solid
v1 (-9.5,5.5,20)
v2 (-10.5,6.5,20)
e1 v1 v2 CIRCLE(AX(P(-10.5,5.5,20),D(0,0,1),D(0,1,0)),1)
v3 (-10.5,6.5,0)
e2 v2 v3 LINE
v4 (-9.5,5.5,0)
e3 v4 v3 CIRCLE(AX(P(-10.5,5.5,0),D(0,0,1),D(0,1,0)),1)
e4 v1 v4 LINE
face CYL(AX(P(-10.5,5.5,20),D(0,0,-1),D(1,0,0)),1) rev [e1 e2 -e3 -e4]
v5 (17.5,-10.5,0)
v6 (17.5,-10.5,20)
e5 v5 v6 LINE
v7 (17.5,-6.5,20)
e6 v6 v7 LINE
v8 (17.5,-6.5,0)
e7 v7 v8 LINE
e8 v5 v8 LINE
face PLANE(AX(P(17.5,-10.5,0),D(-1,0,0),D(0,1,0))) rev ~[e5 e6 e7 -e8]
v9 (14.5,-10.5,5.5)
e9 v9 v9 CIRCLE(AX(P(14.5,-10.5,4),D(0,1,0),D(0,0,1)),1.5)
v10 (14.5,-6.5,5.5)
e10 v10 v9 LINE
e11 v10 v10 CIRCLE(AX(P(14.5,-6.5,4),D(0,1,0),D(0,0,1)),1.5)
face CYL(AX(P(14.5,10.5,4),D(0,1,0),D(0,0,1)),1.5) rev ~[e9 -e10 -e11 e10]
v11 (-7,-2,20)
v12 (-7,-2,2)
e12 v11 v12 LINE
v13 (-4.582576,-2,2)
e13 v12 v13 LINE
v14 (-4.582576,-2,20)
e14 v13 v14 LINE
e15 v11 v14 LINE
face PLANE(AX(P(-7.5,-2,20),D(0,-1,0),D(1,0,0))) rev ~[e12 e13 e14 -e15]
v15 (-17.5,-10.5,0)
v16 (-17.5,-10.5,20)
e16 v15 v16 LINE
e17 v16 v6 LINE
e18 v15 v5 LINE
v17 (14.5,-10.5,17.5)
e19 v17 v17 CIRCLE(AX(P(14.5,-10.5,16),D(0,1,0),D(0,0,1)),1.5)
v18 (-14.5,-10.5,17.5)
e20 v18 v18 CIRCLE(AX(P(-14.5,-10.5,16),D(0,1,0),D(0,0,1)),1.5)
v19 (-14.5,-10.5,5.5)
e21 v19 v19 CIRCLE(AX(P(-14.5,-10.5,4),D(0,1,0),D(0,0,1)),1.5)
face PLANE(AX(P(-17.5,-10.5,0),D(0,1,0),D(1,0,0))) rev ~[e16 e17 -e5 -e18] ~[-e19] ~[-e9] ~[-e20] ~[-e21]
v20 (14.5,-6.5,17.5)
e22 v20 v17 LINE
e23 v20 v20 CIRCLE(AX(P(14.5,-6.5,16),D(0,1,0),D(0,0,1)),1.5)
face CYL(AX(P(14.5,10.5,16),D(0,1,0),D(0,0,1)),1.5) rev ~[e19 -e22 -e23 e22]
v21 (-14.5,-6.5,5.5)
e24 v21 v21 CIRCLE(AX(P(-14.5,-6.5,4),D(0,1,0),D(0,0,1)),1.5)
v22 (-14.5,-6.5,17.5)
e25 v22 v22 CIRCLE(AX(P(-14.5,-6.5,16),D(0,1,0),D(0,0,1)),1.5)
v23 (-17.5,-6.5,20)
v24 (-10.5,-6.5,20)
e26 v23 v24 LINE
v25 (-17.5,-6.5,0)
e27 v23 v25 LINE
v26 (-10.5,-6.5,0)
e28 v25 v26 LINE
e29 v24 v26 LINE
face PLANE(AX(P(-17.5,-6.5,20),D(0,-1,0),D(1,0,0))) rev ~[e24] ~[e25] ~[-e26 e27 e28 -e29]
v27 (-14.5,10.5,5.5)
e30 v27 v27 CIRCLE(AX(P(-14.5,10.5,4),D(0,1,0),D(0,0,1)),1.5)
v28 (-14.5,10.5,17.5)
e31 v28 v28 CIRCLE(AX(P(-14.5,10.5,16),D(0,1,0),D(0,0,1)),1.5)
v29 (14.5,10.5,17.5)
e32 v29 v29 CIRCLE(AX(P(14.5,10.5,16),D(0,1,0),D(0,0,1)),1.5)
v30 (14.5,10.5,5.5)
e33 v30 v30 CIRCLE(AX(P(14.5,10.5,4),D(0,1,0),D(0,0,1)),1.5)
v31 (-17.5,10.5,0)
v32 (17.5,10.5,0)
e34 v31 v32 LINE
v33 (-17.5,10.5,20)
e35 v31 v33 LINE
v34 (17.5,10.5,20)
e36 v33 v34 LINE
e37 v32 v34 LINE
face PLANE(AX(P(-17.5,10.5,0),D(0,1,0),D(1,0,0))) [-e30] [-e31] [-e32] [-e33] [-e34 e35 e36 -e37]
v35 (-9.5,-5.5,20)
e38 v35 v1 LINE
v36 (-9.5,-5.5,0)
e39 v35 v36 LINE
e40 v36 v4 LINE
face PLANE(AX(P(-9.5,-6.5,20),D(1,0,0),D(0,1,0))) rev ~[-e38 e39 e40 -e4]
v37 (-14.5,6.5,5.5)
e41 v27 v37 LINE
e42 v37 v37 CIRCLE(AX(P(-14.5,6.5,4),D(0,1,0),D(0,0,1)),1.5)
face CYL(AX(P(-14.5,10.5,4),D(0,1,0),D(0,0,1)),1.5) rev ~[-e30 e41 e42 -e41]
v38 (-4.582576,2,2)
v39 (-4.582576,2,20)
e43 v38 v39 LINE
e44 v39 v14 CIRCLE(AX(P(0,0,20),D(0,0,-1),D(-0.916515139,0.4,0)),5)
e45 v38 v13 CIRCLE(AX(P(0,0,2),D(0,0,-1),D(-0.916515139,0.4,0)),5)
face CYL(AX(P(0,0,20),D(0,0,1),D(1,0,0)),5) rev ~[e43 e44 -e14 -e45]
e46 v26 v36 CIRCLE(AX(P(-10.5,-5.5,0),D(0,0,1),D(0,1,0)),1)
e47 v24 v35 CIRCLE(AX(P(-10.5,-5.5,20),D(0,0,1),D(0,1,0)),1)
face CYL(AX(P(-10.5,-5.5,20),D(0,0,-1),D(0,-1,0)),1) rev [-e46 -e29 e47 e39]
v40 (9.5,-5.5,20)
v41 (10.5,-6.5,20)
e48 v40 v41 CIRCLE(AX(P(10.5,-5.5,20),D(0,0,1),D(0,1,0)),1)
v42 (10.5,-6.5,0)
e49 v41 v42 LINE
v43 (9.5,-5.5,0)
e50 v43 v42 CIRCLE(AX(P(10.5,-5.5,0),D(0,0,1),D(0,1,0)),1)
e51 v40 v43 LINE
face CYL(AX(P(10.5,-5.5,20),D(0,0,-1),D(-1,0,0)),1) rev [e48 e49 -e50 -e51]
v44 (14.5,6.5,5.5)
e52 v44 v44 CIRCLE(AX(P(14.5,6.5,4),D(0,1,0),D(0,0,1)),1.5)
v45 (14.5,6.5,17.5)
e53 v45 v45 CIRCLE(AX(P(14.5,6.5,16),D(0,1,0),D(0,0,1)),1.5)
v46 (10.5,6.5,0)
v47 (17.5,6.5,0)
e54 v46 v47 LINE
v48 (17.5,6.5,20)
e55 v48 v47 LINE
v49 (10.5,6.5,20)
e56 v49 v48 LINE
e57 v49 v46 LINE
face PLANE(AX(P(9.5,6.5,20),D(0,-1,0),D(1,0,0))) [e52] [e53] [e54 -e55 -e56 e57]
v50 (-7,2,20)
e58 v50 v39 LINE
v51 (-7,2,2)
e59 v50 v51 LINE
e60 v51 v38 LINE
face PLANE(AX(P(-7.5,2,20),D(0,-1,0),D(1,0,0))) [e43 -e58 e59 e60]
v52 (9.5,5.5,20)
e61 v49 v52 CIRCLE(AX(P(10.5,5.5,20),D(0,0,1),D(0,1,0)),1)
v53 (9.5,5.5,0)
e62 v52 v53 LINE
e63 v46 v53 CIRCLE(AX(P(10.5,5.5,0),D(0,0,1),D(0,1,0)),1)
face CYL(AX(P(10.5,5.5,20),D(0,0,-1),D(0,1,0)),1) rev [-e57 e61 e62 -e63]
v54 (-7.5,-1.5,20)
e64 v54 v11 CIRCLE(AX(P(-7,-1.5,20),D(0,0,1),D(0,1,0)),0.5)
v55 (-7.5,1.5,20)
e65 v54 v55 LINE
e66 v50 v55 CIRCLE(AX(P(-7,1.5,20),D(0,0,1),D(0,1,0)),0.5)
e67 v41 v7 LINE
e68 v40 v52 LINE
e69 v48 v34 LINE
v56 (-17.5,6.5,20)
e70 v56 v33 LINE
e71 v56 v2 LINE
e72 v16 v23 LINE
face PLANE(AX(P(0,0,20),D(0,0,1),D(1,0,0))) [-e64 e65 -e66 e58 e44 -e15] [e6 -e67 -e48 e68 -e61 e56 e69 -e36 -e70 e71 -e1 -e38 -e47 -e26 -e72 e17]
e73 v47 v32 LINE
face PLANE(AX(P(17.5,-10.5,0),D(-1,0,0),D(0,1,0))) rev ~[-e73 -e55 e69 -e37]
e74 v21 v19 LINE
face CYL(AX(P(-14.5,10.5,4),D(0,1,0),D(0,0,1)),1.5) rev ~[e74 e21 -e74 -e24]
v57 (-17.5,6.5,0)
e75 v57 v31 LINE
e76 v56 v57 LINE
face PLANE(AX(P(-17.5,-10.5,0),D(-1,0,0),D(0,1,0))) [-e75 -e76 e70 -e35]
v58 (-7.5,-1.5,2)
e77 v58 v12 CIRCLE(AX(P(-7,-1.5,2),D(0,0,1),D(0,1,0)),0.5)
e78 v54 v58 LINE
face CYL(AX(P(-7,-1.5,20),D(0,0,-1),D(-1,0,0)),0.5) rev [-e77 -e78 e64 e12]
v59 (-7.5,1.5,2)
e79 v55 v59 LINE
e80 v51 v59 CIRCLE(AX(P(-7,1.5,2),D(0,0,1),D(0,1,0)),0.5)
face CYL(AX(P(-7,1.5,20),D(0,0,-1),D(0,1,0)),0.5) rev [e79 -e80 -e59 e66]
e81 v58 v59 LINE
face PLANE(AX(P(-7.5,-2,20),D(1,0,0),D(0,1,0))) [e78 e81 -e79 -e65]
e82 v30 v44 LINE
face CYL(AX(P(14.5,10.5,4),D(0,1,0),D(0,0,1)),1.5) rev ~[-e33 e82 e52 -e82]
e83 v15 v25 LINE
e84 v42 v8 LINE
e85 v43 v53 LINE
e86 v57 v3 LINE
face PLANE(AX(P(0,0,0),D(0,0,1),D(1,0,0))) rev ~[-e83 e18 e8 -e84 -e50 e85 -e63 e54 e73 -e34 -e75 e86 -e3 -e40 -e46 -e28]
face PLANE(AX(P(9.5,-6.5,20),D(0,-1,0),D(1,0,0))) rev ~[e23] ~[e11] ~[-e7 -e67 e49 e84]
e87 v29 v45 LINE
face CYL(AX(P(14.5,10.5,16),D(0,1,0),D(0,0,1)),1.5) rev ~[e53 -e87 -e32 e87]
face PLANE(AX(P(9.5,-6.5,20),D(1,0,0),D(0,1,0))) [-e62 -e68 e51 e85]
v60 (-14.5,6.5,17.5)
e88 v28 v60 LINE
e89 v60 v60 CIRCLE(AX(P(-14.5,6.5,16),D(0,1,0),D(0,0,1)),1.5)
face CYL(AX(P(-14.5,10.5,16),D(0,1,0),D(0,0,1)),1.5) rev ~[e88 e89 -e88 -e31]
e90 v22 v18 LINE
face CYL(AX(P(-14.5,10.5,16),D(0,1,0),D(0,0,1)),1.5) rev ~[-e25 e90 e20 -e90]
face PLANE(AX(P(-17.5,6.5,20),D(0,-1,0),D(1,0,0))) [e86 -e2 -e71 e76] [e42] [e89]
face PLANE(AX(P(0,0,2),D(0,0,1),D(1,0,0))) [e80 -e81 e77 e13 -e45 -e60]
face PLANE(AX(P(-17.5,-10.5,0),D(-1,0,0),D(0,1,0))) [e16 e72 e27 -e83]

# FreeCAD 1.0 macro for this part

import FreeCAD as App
import Part
import Sketcher

V = App.Vector
Q = App.Units.Quantity


def edges_at(feature, points):
    """Names of the edges that pass closest to the given points."""
    edges = feature.Shape.Edges
    near = lambda p: min(range(len(edges)), key=lambda i: edges[i].distToShape(Part.Vertex(*p))[0])
    return sorted({f"Edge{near(p) + 1}" for p in points})

doc = App.newDocument("Part")
body = doc.addObject("PartDesign::Body", "Body")

sketch1 = doc.addObject("Sketcher::SketchObject", "Sketch")
body.addObject(sketch1)
sketch1.AttachmentSupport = (doc.XY_Plane, [""])
sketch1.MapMode = "FlatFace"
sketch1.addGeometry([
    Part.LineSegment(V(-18, 10, 0), V(-18, -10, 0)),
    Part.LineSegment(V(-18, -10, 0), V(18, -10, 0)),
    Part.LineSegment(V(18, -10, 0), V(18, 10, 0)),
    Part.LineSegment(V(18, 10, 0), V(-18, 10, 0)),
], False)
sketch1.addConstraint([
    Sketcher.Constraint("Coincident", 0, 2, 1, 1),
    Sketcher.Constraint("Coincident", 1, 2, 2, 1),
    Sketcher.Constraint("Coincident", 2, 2, 3, 1),
    Sketcher.Constraint("Coincident", 3, 2, 0, 1),
    Sketcher.Constraint("Vertical", 0),
    Sketcher.Constraint("Horizontal", 1),
    Sketcher.Constraint("Vertical", 2),
    Sketcher.Constraint("Horizontal", 3),
    Sketcher.Constraint("Symmetric", 0, 2, 2, 2, -1, 1),
    Sketcher.Constraint("DistanceX", 1, 1, 1, 2, Q("35 mm")),
    Sketcher.Constraint("DistanceY", 0, 2, 0, 1, Q("21 mm")),
])
pad1 = doc.addObject("PartDesign::Pad", "Pad")
body.addObject(pad1)
pad1.Profile = sketch1
pad1.Length = 20

sketch2 = doc.addObject("Sketcher::SketchObject", "Sketch001")
body.addObject(sketch2)
sketch2.AttachmentSupport = (doc.XY_Plane, [""])
sketch2.MapMode = "FlatFace"
sketch2.AttachmentOffset = App.Placement(V(0, 0, 20), App.Rotation())
sketch2.addGeometry(Part.Circle(V(0, 0, 0), V(0, 0, 1), 5), False)
sketch2.addConstraint([
    Sketcher.Constraint("Coincident", 0, 3, -1, 1),
    Sketcher.Constraint("Diameter", 0, Q("10 mm")),
])
pocket1 = doc.addObject("PartDesign::Pocket", "Pocket")
body.addObject(pocket1)
pocket1.Profile = sketch2
pocket1.Length = 18

sketch3 = doc.addObject("Sketcher::SketchObject", "Sketch002")
body.addObject(sketch3)
sketch3.AttachmentSupport = (doc.XY_Plane, [""])
sketch3.MapMode = "FlatFace"
sketch3.AttachmentOffset = App.Placement(V(0, 0, 20), App.Rotation())
sketch3.addGeometry([
    Part.LineSegment(V(-7.5, 2, 0), V(-7.5, -2, 0)),
    Part.LineSegment(V(-7.5, -2, 0), V(0, -2, 0)),
    Part.LineSegment(V(0, -2, 0), V(0, 2, 0)),
    Part.LineSegment(V(0, 2, 0), V(-7.5, 2, 0)),
], False)
sketch3.addConstraint([
    Sketcher.Constraint("Coincident", 0, 2, 1, 1),
    Sketcher.Constraint("Coincident", 1, 2, 2, 1),
    Sketcher.Constraint("Coincident", 2, 2, 3, 1),
    Sketcher.Constraint("Coincident", 3, 2, 0, 1),
    Sketcher.Constraint("Vertical", 0),
    Sketcher.Constraint("Horizontal", 1),
    Sketcher.Constraint("Vertical", 2),
    Sketcher.Constraint("Horizontal", 3),
    Sketcher.Constraint("Symmetric", 1, 2, 2, 2, -1, 1),
    Sketcher.Constraint("DistanceY", 0, 2, 0, 1, Q("4 mm")),
    Sketcher.Constraint("DistanceX", 1, 1, 1, 2, Q("7.5 mm")),
])
pocket2 = doc.addObject("PartDesign::Pocket", "Pocket001")
body.addObject(pocket2)
pocket2.Profile = sketch3
pocket2.Length = 18
doc.recompute()

fillet = doc.addObject("PartDesign::Fillet", "Fillet")
body.addObject(fillet)
fillet.Base = (pocket2, edges_at(pocket2, [(-7.5, 2, 11), (-7.5, -2, 11)]))
fillet.Radius = 0.5

sketch4 = doc.addObject("Sketcher::SketchObject", "Sketch003")
body.addObject(sketch4)
sketch4.AttachmentSupport = (doc.XY_Plane, [""])
sketch4.MapMode = "FlatFace"
sketch4.AttachmentOffset = App.Placement(V(0, 0, 20), App.Rotation())
sketch4.addGeometry([
    Part.LineSegment(V(-18, 6, 0), V(-18, -6, 0)),
    Part.LineSegment(V(-18, -6, 0), V(-10, -6, 0)),
    Part.LineSegment(V(-10, -6, 0), V(-10, 6, 0)),
    Part.LineSegment(V(-10, 6, 0), V(-18, 6, 0)),
    Part.LineSegment(V(10, 6, 0), V(10, -6, 0)),
    Part.LineSegment(V(10, -6, 0), V(18, -6, 0)),
    Part.LineSegment(V(18, -6, 0), V(18, 6, 0)),
    Part.LineSegment(V(18, 6, 0), V(10, 6, 0)),
], False)
sketch4.addConstraint([
    Sketcher.Constraint("Coincident", 0, 2, 1, 1),
    Sketcher.Constraint("Coincident", 1, 2, 2, 1),
    Sketcher.Constraint("Coincident", 2, 2, 3, 1),
    Sketcher.Constraint("Coincident", 3, 2, 0, 1),
    Sketcher.Constraint("Coincident", 4, 2, 5, 1),
    Sketcher.Constraint("Coincident", 5, 2, 6, 1),
    Sketcher.Constraint("Coincident", 6, 2, 7, 1),
    Sketcher.Constraint("Coincident", 7, 2, 4, 1),
    Sketcher.Constraint("Vertical", 0),
    Sketcher.Constraint("Horizontal", 1),
    Sketcher.Constraint("Vertical", 2),
    Sketcher.Constraint("Horizontal", 3),
    Sketcher.Constraint("Vertical", 4),
    Sketcher.Constraint("Horizontal", 5),
    Sketcher.Constraint("Vertical", 6),
    Sketcher.Constraint("Horizontal", 7),
    Sketcher.Constraint("Symmetric", 2, 2, 4, 2, -1, 1),
    Sketcher.Constraint("Symmetric", 0, 2, 6, 2, -1, 1),
    Sketcher.Constraint("Horizontal", 1, 2, 4, 2),
    Sketcher.Constraint("DistanceX", 1, 1, 1, 2, Q("8 mm")),
    Sketcher.Constraint("DistanceY", 0, 2, 0, 1, Q("13 mm")),
    Sketcher.Constraint("DistanceX", 1, 2, 4, 2, Q("19 mm")),
])
pocket3 = doc.addObject("PartDesign::Pocket", "Pocket002")
body.addObject(pocket3)
pocket3.Profile = sketch4
pocket3.Type = "ThroughAll"
doc.recompute()

fillet2 = doc.addObject("PartDesign::Fillet", "Fillet001")
body.addObject(fillet2)
fillet2.Base = (pocket3, edges_at(pocket3, [
    (-9.5, 6.5, 10),
    (-9.5, -6.5, 10),
    (9.5, 6.5, 10),
    (9.5, -6.5, 10),
]))
fillet2.Radius = 1

sketch5 = doc.addObject("Sketcher::SketchObject", "Sketch004")
body.addObject(sketch5)
sketch5.AttachmentSupport = (doc.XZ_Plane, [""])
sketch5.MapMode = "FlatFace"
sketch5.AttachmentOffset = App.Placement(V(0, 0, -10.5), App.Rotation())
sketch5.addGeometry([
    Part.Circle(V(-14.5, 4, 0), V(0, 0, 1), 1.5),
    Part.Circle(V(-14.5, 16, 0), V(0, 0, 1), 1.5),
    Part.Circle(V(14.5, 16, 0), V(0, 0, 1), 1.5),
    Part.Circle(V(14.5, 4, 0), V(0, 0, 1), 1.5),
], False)
sketch5.addConstraint([
    Sketcher.Constraint("Equal", 0, 1),
    Sketcher.Constraint("Equal", 1, 2),
    Sketcher.Constraint("Equal", 2, 3),
    Sketcher.Constraint("Symmetric", 1, 3, 2, 3, -2),
    Sketcher.Constraint("Symmetric", 0, 3, 3, 3, -2),
    Sketcher.Constraint("Vertical", 0, 3, 1, 3),
    Sketcher.Constraint("Diameter", 0, Q("3 mm")),
    Sketcher.Constraint("DistanceY", -1, 1, 0, 3, Q("4 mm")),
    Sketcher.Constraint("DistanceY", -1, 1, 1, 3, Q("16 mm")),
    Sketcher.Constraint("DistanceX", 1, 3, 2, 3, Q("29 mm")),
])
pocket4 = doc.addObject("PartDesign::Pocket", "Pocket003")
body.addObject(pocket4)
pocket4.Profile = sketch5
pocket4.Type = "ThroughAll"
pocket4.Reversed = True

doc.recompute()
